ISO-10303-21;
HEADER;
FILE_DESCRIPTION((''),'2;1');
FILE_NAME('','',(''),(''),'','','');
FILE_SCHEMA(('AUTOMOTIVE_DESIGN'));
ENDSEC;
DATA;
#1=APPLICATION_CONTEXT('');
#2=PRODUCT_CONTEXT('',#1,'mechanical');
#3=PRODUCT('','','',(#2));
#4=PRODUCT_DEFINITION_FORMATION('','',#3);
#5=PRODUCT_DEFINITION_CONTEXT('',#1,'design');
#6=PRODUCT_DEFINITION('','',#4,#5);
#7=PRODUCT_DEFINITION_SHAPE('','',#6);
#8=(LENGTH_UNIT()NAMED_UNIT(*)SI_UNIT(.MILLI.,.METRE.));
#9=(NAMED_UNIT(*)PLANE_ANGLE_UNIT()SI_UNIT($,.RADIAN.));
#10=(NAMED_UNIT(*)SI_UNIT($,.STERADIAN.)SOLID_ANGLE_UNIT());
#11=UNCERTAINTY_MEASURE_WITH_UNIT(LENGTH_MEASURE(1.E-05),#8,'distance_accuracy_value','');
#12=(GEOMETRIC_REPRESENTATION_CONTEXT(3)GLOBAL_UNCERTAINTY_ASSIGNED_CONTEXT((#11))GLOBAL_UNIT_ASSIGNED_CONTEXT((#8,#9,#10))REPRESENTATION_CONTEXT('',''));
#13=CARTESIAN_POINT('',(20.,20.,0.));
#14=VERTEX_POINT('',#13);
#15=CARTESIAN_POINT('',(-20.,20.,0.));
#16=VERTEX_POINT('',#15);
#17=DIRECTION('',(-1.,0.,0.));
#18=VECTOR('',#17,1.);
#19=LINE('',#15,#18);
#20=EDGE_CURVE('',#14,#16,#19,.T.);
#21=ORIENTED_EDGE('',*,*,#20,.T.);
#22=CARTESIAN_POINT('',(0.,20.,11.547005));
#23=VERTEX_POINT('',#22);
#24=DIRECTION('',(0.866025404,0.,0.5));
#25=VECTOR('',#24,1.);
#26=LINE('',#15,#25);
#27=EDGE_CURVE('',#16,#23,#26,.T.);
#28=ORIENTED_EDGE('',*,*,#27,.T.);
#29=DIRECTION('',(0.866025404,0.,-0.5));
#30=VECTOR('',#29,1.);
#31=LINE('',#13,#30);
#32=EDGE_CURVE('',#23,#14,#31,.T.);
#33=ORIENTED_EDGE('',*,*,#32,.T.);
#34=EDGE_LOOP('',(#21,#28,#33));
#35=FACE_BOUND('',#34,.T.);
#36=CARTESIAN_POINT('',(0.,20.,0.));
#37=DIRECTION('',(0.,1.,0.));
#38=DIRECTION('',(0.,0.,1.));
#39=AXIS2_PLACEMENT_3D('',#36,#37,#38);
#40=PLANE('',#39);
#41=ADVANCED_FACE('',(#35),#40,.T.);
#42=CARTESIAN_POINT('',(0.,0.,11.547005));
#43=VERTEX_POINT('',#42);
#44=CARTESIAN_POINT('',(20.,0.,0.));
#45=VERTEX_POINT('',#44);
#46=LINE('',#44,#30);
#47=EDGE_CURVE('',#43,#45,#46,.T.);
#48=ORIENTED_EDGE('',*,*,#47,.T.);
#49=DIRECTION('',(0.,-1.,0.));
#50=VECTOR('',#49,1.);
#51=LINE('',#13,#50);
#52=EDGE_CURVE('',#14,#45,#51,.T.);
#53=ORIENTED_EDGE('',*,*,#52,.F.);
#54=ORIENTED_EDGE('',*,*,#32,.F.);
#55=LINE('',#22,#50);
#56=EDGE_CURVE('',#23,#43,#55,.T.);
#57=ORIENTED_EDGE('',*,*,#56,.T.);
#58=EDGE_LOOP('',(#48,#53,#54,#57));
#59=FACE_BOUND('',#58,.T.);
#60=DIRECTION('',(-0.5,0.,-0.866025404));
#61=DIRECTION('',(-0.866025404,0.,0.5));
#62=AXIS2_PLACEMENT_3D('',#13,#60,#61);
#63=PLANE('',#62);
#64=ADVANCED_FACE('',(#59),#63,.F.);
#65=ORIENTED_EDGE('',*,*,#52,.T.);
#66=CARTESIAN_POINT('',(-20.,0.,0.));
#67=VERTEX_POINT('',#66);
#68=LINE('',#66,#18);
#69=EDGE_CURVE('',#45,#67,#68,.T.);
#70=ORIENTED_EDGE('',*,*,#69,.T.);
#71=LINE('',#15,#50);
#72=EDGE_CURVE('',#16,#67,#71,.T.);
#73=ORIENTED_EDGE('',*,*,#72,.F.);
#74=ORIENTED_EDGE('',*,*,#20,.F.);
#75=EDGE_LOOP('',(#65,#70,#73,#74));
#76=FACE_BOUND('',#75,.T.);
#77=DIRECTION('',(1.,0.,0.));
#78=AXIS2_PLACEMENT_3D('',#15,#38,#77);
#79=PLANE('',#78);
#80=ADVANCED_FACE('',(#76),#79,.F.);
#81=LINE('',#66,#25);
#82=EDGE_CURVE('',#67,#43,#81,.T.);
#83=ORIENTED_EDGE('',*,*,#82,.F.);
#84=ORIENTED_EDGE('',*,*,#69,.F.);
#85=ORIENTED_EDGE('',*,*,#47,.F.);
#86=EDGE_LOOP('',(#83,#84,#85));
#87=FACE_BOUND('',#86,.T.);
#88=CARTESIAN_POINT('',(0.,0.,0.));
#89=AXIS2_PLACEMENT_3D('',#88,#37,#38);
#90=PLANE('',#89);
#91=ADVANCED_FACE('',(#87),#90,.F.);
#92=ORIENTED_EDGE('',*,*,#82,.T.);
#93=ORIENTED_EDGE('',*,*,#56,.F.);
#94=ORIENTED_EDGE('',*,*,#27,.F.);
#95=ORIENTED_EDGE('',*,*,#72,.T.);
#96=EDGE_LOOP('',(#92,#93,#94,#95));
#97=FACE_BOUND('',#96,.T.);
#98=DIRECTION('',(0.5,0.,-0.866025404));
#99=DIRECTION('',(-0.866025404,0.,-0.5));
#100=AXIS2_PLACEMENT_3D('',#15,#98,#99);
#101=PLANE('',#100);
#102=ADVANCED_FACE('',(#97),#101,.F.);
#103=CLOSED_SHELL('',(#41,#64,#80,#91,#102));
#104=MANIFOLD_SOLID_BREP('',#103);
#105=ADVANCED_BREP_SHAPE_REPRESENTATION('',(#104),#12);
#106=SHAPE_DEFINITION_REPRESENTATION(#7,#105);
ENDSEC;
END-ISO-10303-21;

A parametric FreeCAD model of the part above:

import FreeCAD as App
import Part
import Sketcher
from FreeCAD import Vector
Q = App.Units.Quantity


def add_polygon(sketch, points):
    """Adds a closed chain of lines whose ends are joined by coincident constraints."""
    first, n = sketch.GeometryCount, len(points)
    for a, b in zip(points, points[1:] + points[:1]):
        sketch.addGeometry(Part.LineSegment(App.Vector(*a, 0), App.Vector(*b, 0)), False)
    for i in range(n):
        sketch.addConstraint(Sketcher.Constraint("Coincident", first + i, 2, first + (i + 1) % n, 1))

doc = App.newDocument("Part")
body = doc.addObject("PartDesign::Body", "Body")

# Sketch on XZ plane
sketch1 = doc.addObject("Sketcher::SketchObject", "Sketch")
body.addObject(sketch1)
sketch1.AttachmentSupport = (doc.XZ_Plane, [""])
sketch1.MapMode = "FlatFace"
add_polygon(sketch1, [(20, 0), (-20, 0), (0, 12)])  # lines 0-2
sketch1.addConstraint([
    Sketcher.Constraint("Horizontal", 0),
    Sketcher.Constraint("Symmetric", 0, 2, 2, 2, -1, 1),
    Sketcher.Constraint("PointOnObject", 1, 2, -2),
    Sketcher.Constraint("DistanceX", 0, 2, 0, 1, 40.0),
    Sketcher.Constraint("Angle", 1, Q("30 deg")),
])
pad1 = doc.addObject("PartDesign::Pad", "Pad")
body.addObject(pad1)
pad1.Profile = sketch1
pad1.Length = 20
pad1.Reversed = True

doc.recompute()
